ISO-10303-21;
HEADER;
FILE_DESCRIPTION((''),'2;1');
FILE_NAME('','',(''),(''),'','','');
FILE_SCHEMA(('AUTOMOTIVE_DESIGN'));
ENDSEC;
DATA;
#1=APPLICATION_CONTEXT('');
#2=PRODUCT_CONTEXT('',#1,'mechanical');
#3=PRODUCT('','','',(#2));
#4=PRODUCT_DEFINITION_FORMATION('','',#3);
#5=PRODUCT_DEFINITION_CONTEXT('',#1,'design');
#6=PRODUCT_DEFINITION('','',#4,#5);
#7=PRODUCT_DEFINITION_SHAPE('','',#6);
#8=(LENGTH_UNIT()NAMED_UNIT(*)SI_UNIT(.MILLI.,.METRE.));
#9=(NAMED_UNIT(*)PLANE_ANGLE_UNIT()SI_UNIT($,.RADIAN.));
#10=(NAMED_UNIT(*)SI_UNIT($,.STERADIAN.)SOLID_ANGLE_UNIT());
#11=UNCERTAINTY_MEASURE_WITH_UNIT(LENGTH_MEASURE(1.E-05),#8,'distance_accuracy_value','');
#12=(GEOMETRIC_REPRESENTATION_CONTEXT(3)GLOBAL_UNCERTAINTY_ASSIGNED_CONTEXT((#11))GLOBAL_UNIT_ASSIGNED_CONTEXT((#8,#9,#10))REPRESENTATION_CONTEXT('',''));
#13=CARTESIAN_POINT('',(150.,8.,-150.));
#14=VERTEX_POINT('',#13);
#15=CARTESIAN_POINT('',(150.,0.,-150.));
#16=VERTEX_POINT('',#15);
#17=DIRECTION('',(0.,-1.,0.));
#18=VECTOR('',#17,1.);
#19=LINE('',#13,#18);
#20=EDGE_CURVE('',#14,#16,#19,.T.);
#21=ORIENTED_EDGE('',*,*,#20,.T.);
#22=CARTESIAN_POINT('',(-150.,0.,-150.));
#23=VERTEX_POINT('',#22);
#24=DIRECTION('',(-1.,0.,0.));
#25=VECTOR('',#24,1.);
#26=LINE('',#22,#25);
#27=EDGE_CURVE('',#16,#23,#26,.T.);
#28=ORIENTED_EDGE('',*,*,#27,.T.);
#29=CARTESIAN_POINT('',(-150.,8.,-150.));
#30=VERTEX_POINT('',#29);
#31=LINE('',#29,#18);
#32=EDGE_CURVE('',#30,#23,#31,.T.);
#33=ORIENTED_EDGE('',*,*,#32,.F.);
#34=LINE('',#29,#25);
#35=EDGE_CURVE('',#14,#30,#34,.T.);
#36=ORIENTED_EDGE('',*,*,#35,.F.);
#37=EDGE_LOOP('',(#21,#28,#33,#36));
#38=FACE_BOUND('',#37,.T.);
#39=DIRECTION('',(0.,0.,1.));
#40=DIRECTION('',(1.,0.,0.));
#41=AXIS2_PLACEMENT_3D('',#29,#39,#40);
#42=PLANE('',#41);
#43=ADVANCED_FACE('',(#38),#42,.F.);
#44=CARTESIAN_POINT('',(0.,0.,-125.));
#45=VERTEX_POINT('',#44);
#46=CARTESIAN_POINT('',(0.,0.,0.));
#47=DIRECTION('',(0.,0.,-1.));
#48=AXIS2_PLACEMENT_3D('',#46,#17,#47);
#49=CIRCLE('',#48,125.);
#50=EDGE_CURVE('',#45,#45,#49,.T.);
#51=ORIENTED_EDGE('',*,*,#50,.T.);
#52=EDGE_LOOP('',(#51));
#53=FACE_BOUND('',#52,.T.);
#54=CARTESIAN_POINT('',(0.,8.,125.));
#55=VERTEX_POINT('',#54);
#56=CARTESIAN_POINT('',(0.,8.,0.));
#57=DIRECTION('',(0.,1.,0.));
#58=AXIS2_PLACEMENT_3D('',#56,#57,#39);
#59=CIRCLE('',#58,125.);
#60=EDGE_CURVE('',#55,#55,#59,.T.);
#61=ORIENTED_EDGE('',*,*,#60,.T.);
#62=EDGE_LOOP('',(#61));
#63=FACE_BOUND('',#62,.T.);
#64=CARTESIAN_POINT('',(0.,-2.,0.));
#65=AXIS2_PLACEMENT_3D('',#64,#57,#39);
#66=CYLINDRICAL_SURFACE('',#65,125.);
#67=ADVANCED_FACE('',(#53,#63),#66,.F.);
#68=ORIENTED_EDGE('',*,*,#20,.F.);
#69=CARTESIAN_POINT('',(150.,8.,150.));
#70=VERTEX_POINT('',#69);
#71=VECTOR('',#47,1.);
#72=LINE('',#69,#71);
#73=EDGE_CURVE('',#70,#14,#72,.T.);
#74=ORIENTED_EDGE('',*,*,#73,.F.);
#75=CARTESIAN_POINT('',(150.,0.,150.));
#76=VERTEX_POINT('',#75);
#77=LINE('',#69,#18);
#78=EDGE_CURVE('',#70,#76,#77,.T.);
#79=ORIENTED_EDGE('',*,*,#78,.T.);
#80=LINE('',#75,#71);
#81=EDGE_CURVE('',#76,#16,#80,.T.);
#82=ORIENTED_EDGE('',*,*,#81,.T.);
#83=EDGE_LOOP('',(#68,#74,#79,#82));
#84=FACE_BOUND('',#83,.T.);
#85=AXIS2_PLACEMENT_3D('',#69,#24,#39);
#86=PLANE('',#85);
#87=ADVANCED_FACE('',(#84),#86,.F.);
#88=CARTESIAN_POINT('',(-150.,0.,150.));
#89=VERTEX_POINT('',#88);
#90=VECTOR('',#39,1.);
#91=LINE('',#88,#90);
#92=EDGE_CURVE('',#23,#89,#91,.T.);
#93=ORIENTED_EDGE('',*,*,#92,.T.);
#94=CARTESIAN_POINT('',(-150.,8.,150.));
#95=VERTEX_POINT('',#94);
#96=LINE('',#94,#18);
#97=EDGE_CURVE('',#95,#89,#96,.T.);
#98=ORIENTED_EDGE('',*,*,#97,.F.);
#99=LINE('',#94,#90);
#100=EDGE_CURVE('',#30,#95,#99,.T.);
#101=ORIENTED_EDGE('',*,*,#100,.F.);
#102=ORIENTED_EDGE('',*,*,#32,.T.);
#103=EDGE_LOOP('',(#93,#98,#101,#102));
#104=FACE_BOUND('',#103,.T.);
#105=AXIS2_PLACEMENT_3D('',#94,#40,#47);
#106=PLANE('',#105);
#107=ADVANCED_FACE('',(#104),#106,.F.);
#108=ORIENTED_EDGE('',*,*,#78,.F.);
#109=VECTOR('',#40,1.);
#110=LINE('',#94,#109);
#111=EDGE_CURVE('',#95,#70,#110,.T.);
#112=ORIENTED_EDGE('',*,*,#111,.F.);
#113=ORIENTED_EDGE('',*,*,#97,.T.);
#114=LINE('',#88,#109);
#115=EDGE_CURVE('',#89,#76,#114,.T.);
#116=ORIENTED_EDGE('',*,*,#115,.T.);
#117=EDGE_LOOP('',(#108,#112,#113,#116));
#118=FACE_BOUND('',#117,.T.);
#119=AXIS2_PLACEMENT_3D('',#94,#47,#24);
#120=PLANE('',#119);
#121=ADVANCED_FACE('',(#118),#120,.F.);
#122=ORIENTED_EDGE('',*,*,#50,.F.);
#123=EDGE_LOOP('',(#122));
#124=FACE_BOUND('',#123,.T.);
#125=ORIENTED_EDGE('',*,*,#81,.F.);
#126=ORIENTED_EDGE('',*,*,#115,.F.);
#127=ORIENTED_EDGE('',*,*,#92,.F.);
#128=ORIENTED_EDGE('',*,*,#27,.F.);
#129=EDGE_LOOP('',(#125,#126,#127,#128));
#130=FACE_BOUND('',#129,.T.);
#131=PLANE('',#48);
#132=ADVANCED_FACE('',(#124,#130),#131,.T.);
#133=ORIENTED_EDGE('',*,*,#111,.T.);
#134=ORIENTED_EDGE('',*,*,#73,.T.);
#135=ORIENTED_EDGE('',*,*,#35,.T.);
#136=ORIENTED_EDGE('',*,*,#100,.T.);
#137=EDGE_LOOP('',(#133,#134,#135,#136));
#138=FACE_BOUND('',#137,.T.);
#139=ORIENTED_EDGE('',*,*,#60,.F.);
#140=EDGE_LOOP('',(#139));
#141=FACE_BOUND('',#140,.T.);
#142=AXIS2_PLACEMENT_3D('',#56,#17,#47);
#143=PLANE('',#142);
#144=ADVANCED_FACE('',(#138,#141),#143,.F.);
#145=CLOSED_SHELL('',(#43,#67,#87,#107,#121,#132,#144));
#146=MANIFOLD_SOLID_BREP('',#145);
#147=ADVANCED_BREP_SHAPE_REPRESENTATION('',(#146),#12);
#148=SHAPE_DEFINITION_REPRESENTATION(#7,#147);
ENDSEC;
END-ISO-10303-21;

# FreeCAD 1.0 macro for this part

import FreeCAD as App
import Part
import Sketcher
from FreeCAD import Vector

doc = App.newDocument("Part")
params = doc.addObject("Spreadsheet::Sheet", "Params")
for row, (alias, value) in enumerate([
    ("sketch1_width", "300 mm"),
    ("pad1_length", "8 mm"),
    ("sketch2_diameter", "250 mm"),
    ("pocket1_length", "10 mm"),
], start=1):
    params.set(f"A{row}", alias)
    params.set(f"B{row}", "=" + value)
    params.setAlias(f"B{row}", alias)

body = doc.addObject("PartDesign::Body", "Body")

# Sketch on XZ plane
sketch1 = doc.addObject("Sketcher::SketchObject", "Sketch")
body.addObject(sketch1)
sketch1.AttachmentSupport = (doc.XZ_Plane, [""])
sketch1.MapMode = "FlatFace"
sketch1.addGeometry(Part.LineSegment(Vector(-150, -150, 0), Vector(-150, 150, 0)), False)
sketch1.addGeometry(Part.LineSegment(Vector(-150, 150, 0), Vector(150, 150, 0)), False)
sketch1.addGeometry(Part.LineSegment(Vector(150, 150, 0), Vector(150, -150, 0)), False)
sketch1.addGeometry(Part.LineSegment(Vector(150, -150, 0), Vector(-150, -150, 0)), False)
sketch1.addConstraint(Sketcher.Constraint("Coincident", 0, 2, 1, 1))
sketch1.addConstraint(Sketcher.Constraint("Coincident", 1, 2, 2, 1))
sketch1.addConstraint(Sketcher.Constraint("Coincident", 2, 2, 3, 1))
sketch1.addConstraint(Sketcher.Constraint("Coincident", 3, 2, 0, 1))
sketch1.addConstraint(Sketcher.Constraint("Vertical", 0))
sketch1.addConstraint(Sketcher.Constraint("Horizontal", 1))
sketch1.addConstraint(Sketcher.Constraint("Vertical", 2))
sketch1.addConstraint(Sketcher.Constraint("Horizontal", 3))
sketch1.addConstraint(Sketcher.Constraint("Symmetric", 0, 2, 2, 2, -1, 1))
sketch1.addConstraint(Sketcher.Constraint("Equal", 3, 0))
sketch1.addConstraint(Sketcher.Constraint("DistanceX", 1, 1, 1, 2, 300.0))
sketch1.setExpression("Constraints[10]", "Params.sketch1_width")
pad1 = doc.addObject("PartDesign::Pad", "Pad")
body.addObject(pad1)
pad1.Profile = sketch1
pad1.setExpression("Length", "Params.pad1_length")
pad1.Reversed = True

# Sketch on XZ plane
sketch2 = doc.addObject("Sketcher::SketchObject", "Sketch001")
body.addObject(sketch2)
sketch2.AttachmentSupport = (doc.XZ_Plane, [""])
sketch2.MapMode = "FlatFace"
sketch2.AttachmentOffset = App.Placement(Vector(0, 0, -8), App.Rotation())
sketch2.addGeometry(Part.Circle(Vector(0, 0, 0), Vector(0, 0, 1), 125), False)
sketch2.addConstraint(Sketcher.Constraint("Coincident", 0, 3, -1, 1))
sketch2.addConstraint(Sketcher.Constraint("Diameter", 0, 250.0))
sketch2.setExpression("Constraints[1]", "Params.sketch2_diameter")
pocket1 = doc.addObject("PartDesign::Pocket", "Pocket")
body.addObject(pocket1)
pocket1.Profile = sketch2
pocket1.setExpression("Length", "Params.pocket1_length")
pocket1.Reversed = True

doc.recompute()
